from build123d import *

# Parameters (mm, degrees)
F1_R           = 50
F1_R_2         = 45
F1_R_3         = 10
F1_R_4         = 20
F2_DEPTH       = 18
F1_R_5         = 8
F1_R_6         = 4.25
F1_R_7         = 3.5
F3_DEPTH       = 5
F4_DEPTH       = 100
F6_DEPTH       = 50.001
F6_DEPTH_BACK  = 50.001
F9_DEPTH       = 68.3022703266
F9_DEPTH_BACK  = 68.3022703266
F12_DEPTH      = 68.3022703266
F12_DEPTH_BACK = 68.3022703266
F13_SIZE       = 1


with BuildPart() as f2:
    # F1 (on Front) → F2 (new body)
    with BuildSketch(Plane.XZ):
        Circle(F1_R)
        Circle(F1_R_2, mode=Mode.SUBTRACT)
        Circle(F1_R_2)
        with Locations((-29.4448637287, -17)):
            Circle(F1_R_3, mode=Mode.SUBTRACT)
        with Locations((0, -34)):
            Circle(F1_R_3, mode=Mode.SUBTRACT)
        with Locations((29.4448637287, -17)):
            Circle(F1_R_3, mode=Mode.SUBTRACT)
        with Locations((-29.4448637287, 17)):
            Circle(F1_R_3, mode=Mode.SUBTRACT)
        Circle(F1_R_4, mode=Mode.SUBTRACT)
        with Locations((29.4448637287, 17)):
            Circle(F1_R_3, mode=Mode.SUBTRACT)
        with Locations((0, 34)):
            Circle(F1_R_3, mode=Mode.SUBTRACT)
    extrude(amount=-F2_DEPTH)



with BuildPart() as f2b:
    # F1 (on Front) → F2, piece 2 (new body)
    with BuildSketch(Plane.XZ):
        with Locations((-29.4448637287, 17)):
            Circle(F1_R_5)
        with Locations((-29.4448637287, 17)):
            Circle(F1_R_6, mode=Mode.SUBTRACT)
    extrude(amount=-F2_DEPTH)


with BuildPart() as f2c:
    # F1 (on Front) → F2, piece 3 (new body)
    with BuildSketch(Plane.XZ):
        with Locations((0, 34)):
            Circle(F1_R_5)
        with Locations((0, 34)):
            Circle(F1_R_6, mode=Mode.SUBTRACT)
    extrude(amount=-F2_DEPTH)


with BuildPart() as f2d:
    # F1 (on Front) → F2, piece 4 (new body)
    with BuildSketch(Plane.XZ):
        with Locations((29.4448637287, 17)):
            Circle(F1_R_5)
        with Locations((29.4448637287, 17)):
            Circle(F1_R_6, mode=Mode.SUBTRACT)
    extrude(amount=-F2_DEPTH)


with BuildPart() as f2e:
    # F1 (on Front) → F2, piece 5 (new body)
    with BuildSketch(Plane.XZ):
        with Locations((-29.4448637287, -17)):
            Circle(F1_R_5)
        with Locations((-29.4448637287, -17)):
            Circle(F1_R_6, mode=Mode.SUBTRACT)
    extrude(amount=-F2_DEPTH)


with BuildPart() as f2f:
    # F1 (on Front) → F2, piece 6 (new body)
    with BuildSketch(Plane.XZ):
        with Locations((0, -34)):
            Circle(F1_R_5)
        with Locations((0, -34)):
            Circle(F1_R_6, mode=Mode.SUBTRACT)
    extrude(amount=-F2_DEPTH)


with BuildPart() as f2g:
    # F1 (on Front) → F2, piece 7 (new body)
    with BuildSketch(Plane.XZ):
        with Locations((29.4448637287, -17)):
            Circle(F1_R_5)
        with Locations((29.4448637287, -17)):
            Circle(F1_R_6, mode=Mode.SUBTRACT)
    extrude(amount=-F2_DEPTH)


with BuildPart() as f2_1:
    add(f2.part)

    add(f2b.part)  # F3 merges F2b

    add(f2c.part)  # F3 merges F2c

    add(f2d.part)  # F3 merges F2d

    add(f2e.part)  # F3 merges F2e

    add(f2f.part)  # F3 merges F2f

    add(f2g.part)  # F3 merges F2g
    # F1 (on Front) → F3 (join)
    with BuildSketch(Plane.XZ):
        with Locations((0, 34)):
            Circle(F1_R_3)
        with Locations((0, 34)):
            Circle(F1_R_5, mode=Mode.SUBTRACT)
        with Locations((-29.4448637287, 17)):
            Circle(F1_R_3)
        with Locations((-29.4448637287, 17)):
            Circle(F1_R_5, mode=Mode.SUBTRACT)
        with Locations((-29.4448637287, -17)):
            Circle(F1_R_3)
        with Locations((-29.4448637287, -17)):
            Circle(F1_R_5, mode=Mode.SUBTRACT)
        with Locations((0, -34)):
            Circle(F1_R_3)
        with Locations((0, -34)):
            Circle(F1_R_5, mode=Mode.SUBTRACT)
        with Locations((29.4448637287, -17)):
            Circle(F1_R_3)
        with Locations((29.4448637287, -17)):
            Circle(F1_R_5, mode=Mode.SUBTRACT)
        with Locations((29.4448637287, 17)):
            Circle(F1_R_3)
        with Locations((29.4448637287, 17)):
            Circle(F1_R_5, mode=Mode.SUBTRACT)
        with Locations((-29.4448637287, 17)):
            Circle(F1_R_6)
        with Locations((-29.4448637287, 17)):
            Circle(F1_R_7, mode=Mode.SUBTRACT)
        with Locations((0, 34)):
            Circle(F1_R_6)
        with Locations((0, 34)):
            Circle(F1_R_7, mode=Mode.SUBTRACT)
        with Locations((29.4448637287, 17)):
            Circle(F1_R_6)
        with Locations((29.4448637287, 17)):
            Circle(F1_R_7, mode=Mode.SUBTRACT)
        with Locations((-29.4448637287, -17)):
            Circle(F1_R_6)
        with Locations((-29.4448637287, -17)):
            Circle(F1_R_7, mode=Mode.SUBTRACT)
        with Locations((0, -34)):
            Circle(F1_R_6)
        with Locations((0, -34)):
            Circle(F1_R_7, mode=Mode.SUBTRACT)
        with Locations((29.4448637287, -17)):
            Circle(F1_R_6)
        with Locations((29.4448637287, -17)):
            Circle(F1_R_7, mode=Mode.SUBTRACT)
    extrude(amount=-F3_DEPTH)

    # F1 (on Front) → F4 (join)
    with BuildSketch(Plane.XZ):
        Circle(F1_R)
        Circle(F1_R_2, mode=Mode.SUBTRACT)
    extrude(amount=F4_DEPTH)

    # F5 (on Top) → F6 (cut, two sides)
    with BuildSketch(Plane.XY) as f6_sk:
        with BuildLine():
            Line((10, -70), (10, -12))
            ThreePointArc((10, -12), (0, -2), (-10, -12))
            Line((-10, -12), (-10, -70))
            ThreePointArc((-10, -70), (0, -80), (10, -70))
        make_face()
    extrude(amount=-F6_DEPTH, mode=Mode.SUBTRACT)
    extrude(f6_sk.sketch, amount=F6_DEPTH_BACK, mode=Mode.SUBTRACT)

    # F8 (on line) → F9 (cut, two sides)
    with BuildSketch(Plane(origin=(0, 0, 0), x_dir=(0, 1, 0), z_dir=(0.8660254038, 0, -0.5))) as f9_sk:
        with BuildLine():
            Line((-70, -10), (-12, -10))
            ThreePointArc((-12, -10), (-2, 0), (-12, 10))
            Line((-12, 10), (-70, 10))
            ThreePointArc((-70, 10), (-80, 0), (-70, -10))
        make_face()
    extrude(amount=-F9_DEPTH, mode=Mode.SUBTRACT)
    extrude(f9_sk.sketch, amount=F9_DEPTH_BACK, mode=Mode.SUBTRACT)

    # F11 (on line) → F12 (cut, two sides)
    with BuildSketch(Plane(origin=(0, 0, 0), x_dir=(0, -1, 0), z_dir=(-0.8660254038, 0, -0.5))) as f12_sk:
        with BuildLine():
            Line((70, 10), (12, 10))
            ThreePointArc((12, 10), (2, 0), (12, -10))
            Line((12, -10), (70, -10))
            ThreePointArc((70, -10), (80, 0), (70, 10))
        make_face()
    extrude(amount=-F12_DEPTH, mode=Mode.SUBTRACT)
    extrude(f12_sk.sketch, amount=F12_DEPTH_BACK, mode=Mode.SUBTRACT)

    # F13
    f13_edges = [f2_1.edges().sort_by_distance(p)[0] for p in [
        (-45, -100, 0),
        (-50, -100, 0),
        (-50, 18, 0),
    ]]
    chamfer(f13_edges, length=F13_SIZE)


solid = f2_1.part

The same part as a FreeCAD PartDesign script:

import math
import FreeCAD as App
import Part
import Sketcher
from FreeCAD import Vector


def edges_at(feature, points):
    """Names of the edges that pass closest to the given points."""
    edges = feature.Shape.Edges
    near = lambda p: min(range(len(edges)), key=lambda i: edges[i].distToShape(Part.Vertex(*p))[0])
    return sorted({f"Edge{near(p) + 1}" for p in points})

doc = App.newDocument("Part")
body = doc.addObject("PartDesign::Body", "Body")

sketch1 = body.newObject("Sketcher::SketchObject", "Sketch")
sketch1.AttachmentSupport = (doc.getObject("XZ_Plane"), [""])
sketch1.MapMode = "FlatFace"
sketch1.addGeometry(Part.Circle(Vector(0, 0, 0), Vector(0, 0, 1), 50), False)
sketch1.addGeometry(Part.Circle(Vector(-29, -17, 0), Vector(0, 0, 1), 10), False)
sketch1.addGeometry(Part.Circle(Vector(0, -34, 0), Vector(0, 0, 1), 10), False)
sketch1.addGeometry(Part.Circle(Vector(29, -17, 0), Vector(0, 0, 1), 10), False)
sketch1.addGeometry(Part.Circle(Vector(-29, 17, 0), Vector(0, 0, 1), 10), False)
sketch1.addGeometry(Part.Circle(Vector(0, 0, 0), Vector(0, 0, 1), 20), False)
sketch1.addGeometry(Part.Circle(Vector(29, 17, 0), Vector(0, 0, 1), 10), False)
sketch1.addGeometry(Part.Circle(Vector(0, 34, 0), Vector(0, 0, 1), 10), False)
sketch1.addConstraint(Sketcher.Constraint("Coincident", 0, 3, -1, 1))
sketch1.addConstraint(Sketcher.Constraint("Coincident", 5, 3, -1, 1))
sketch1.addConstraint(Sketcher.Constraint("Equal", 1, 2))
sketch1.addConstraint(Sketcher.Constraint("Equal", 2, 3))
sketch1.addConstraint(Sketcher.Constraint("Equal", 3, 4))
sketch1.addConstraint(Sketcher.Constraint("Equal", 4, 6))
sketch1.addConstraint(Sketcher.Constraint("Equal", 6, 7))
sketch1.addConstraint(Sketcher.Constraint("Symmetric", 3, 3, 4, 3, -1, 1))
sketch1.addConstraint(Sketcher.Constraint("Symmetric", 1, 3, 6, 3, -1, 1))
sketch1.addConstraint(Sketcher.Constraint("Symmetric", 2, 3, 7, 3, -1, 1))
sketch1.addConstraint(Sketcher.Constraint("Symmetric", 1, 3, 3, 3, -2))
sketch1.addConstraint(Sketcher.Constraint("PointOnObject", 2, 3, -2))
sketch1.addConstraint(Sketcher.Constraint("Diameter", 0, 100.0))
sketch1.addConstraint(Sketcher.Constraint("Diameter", 1, 20.0))
sketch1.addConstraint(Sketcher.Constraint("Diameter", 5, 40.0))
sketch1.addConstraint(Sketcher.Constraint("DistanceY", 1, 3, -1, 1, 17.0))
sketch1.addConstraint(Sketcher.Constraint("DistanceY", 2, 3, -1, 1, 34.0))
sketch1.addConstraint(Sketcher.Constraint("DistanceX", 1, 3, -1, 1, 29.444864))
pad1 = body.newObject("PartDesign::Pad", "Pad")
pad1.Profile = sketch1
pad1.Length = 18
pad1.Reversed = True
body2 = doc.addObject("PartDesign::Body", "Body001")

sketch2 = body2.newObject("Sketcher::SketchObject", "Sketch001")
sketch2.AttachmentSupport = (doc.getObject("XZ_Plane001"), [""])
sketch2.MapMode = "FlatFace"
sketch2.addGeometry(Part.Circle(Vector(-29.4, 17, 0), Vector(0, 0, 1), 8), False)
sketch2.addGeometry(Part.Circle(Vector(-29.4, 17, 0), Vector(0, 0, 1), 4.2), False)
sketch2.addConstraint(Sketcher.Constraint("Coincident", 1, 3, 0, 3))
sketch2.addConstraint(Sketcher.Constraint("Diameter", 0, 16.0))
sketch2.addConstraint(Sketcher.Constraint("Diameter", 1, 8.5))
sketch2.addConstraint(Sketcher.Constraint("DistanceY", -1, 1, 0, 3, 17.0))
sketch2.addConstraint(Sketcher.Constraint("DistanceX", 0, 3, -1, 1, 29.444864))
pad2 = body2.newObject("PartDesign::Pad", "Pad001")
pad2.Profile = sketch2
pad2.Length = 18
pad2.Reversed = True
body3 = doc.addObject("PartDesign::Body", "Body002")

sketch3 = body3.newObject("Sketcher::SketchObject", "Sketch002")
sketch3.AttachmentSupport = (doc.getObject("XZ_Plane002"), [""])
sketch3.MapMode = "FlatFace"
sketch3.addGeometry(Part.Circle(Vector(0, 34, 0), Vector(0, 0, 1), 8), False)
sketch3.addGeometry(Part.Circle(Vector(0, 34, 0), Vector(0, 0, 1), 4.2), False)
sketch3.addConstraint(Sketcher.Constraint("Coincident", 1, 3, 0, 3))
sketch3.addConstraint(Sketcher.Constraint("PointOnObject", 0, 3, -2))
sketch3.addConstraint(Sketcher.Constraint("Diameter", 0, 16.0))
sketch3.addConstraint(Sketcher.Constraint("Diameter", 1, 8.5))
sketch3.addConstraint(Sketcher.Constraint("DistanceY", -1, 1, 0, 3, 34.0))
pad3 = body3.newObject("PartDesign::Pad", "Pad002")
pad3.Profile = sketch3
pad3.Length = 18
pad3.Reversed = True
body4 = doc.addObject("PartDesign::Body", "Body003")

sketch4 = body4.newObject("Sketcher::SketchObject", "Sketch003")
sketch4.AttachmentSupport = (doc.getObject("XZ_Plane003"), [""])
sketch4.MapMode = "FlatFace"
sketch4.addGeometry(Part.Circle(Vector(29.4, 17, 0), Vector(0, 0, 1), 8), False)
sketch4.addGeometry(Part.Circle(Vector(29.4, 17, 0), Vector(0, 0, 1), 4.2), False)
sketch4.addConstraint(Sketcher.Constraint("Coincident", 1, 3, 0, 3))
sketch4.addConstraint(Sketcher.Constraint("Diameter", 0, 16.0))
sketch4.addConstraint(Sketcher.Constraint("Diameter", 1, 8.5))
sketch4.addConstraint(Sketcher.Constraint("DistanceY", -1, 1, 0, 3, 17.0))
sketch4.addConstraint(Sketcher.Constraint("DistanceX", -1, 1, 0, 3, 29.444864))
pad4 = body4.newObject("PartDesign::Pad", "Pad003")
pad4.Profile = sketch4
pad4.Length = 18
pad4.Reversed = True
body5 = doc.addObject("PartDesign::Body", "Body004")

sketch5 = body5.newObject("Sketcher::SketchObject", "Sketch004")
sketch5.AttachmentSupport = (doc.getObject("XZ_Plane004"), [""])
sketch5.MapMode = "FlatFace"
sketch5.addGeometry(Part.Circle(Vector(-29.4, -17, 0), Vector(0, 0, 1), 8), False)
sketch5.addGeometry(Part.Circle(Vector(-29.4, -17, 0), Vector(0, 0, 1), 4.2), False)
sketch5.addConstraint(Sketcher.Constraint("Coincident", 1, 3, 0, 3))
sketch5.addConstraint(Sketcher.Constraint("Diameter", 0, 16.0))
sketch5.addConstraint(Sketcher.Constraint("Diameter", 1, 8.5))
sketch5.addConstraint(Sketcher.Constraint("DistanceY", 0, 3, -1, 1, 17.0))
sketch5.addConstraint(Sketcher.Constraint("DistanceX", 0, 3, -1, 1, 29.444864))
pad5 = body5.newObject("PartDesign::Pad", "Pad004")
pad5.Profile = sketch5
pad5.Length = 18
pad5.Reversed = True
body6 = doc.addObject("PartDesign::Body", "Body005")

sketch6 = body6.newObject("Sketcher::SketchObject", "Sketch005")
sketch6.AttachmentSupport = (doc.getObject("XZ_Plane005"), [""])
sketch6.MapMode = "FlatFace"
sketch6.addGeometry(Part.Circle(Vector(0, -34, 0), Vector(0, 0, 1), 8), False)
sketch6.addGeometry(Part.Circle(Vector(0, -34, 0), Vector(0, 0, 1), 4.2), False)
sketch6.addConstraint(Sketcher.Constraint("Coincident", 1, 3, 0, 3))
sketch6.addConstraint(Sketcher.Constraint("PointOnObject", 0, 3, -2))
sketch6.addConstraint(Sketcher.Constraint("Diameter", 0, 16.0))
sketch6.addConstraint(Sketcher.Constraint("Diameter", 1, 8.5))
sketch6.addConstraint(Sketcher.Constraint("DistanceY", 0, 3, -1, 1, 34.0))
pad6 = body6.newObject("PartDesign::Pad", "Pad005")
pad6.Profile = sketch6
pad6.Length = 18
pad6.Reversed = True
body7 = doc.addObject("PartDesign::Body", "Body006")

sketch7 = body7.newObject("Sketcher::SketchObject", "Sketch006")
sketch7.AttachmentSupport = (doc.getObject("XZ_Plane006"), [""])
sketch7.MapMode = "FlatFace"
sketch7.addGeometry(Part.Circle(Vector(29.4, -17, 0), Vector(0, 0, 1), 8), False)
sketch7.addGeometry(Part.Circle(Vector(29.4, -17, 0), Vector(0, 0, 1), 4.2), False)
sketch7.addConstraint(Sketcher.Constraint("Coincident", 1, 3, 0, 3))
sketch7.addConstraint(Sketcher.Constraint("Diameter", 0, 16.0))
sketch7.addConstraint(Sketcher.Constraint("Diameter", 1, 8.5))
sketch7.addConstraint(Sketcher.Constraint("DistanceY", 0, 3, -1, 1, 17.0))
sketch7.addConstraint(Sketcher.Constraint("DistanceX", -1, 1, 0, 3, 29.444864))
pad7 = body7.newObject("PartDesign::Pad", "Pad006")
pad7.Profile = sketch7
pad7.Length = 18
pad7.Reversed = True
body.AllowCompound = True
doc.recompute()

boolean = body.newObject("PartDesign::Boolean", "Boolean")
boolean.Type = "Fuse"
boolean.addObjects([body2])
doc.recompute()

boolean2 = body.newObject("PartDesign::Boolean", "Boolean001")
boolean2.Type = "Fuse"
boolean2.addObjects([body3])
doc.recompute()

boolean3 = body.newObject("PartDesign::Boolean", "Boolean002")
boolean3.Type = "Fuse"
boolean3.addObjects([body4])
doc.recompute()

boolean4 = body.newObject("PartDesign::Boolean", "Boolean003")
boolean4.Type = "Fuse"
boolean4.addObjects([body5])
doc.recompute()

boolean5 = body.newObject("PartDesign::Boolean", "Boolean004")
boolean5.Type = "Fuse"
boolean5.addObjects([body6])
doc.recompute()

boolean6 = body.newObject("PartDesign::Boolean", "Boolean005")
boolean6.Type = "Fuse"
boolean6.addObjects([body7])

sketch8 = body.newObject("Sketcher::SketchObject", "Sketch007")
sketch8.AttachmentSupport = (doc.getObject("XZ_Plane"), [""])
sketch8.MapMode = "FlatFace"
sketch8.addGeometry(Part.Circle(Vector(0, 34, 0), Vector(0, 0, 1), 10), False)
sketch8.addGeometry(Part.Circle(Vector(0, 34, 0), Vector(0, 0, 1), 8), False)
sketch8.addGeometry(Part.Circle(Vector(-29.4, 17, 0), Vector(0, 0, 1), 10), False)
sketch8.addGeometry(Part.Circle(Vector(-29.4, 17, 0), Vector(0, 0, 1), 8), False)
sketch8.addGeometry(Part.Circle(Vector(-29.4, -17, 0), Vector(0, 0, 1), 10), False)
sketch8.addGeometry(Part.Circle(Vector(-29.4, -17, 0), Vector(0, 0, 1), 8), False)
sketch8.addGeometry(Part.Circle(Vector(0, -34, 0), Vector(0, 0, 1), 10), False)
sketch8.addGeometry(Part.Circle(Vector(0, -34, 0), Vector(0, 0, 1), 8), False)
sketch8.addGeometry(Part.Circle(Vector(29.4, -17, 0), Vector(0, 0, 1), 10), False)
sketch8.addGeometry(Part.Circle(Vector(29.4, -17, 0), Vector(0, 0, 1), 8), False)
sketch8.addGeometry(Part.Circle(Vector(29.4, 17, 0), Vector(0, 0, 1), 10), False)
sketch8.addGeometry(Part.Circle(Vector(29.4, 17, 0), Vector(0, 0, 1), 8), False)
sketch8.addGeometry(Part.Circle(Vector(-29.4, 17, 0), Vector(0, 0, 1), 4.2), False)
sketch8.addGeometry(Part.Circle(Vector(-29.4, 17, 0), Vector(0, 0, 1), 3.5), False)
sketch8.addGeometry(Part.Circle(Vector(0, 34, 0), Vector(0, 0, 1), 4.2), False)
sketch8.addGeometry(Part.Circle(Vector(0, 34, 0), Vector(0, 0, 1), 3.5), False)
sketch8.addGeometry(Part.Circle(Vector(29.4, 17, 0), Vector(0, 0, 1), 4.2), False)
sketch8.addGeometry(Part.Circle(Vector(29.4, 17, 0), Vector(0, 0, 1), 3.5), False)
sketch8.addGeometry(Part.Circle(Vector(-29.4, -17, 0), Vector(0, 0, 1), 4.2), False)
sketch8.addGeometry(Part.Circle(Vector(-29.4, -17, 0), Vector(0, 0, 1), 3.5), False)
sketch8.addGeometry(Part.Circle(Vector(0, -34, 0), Vector(0, 0, 1), 4.2), False)
sketch8.addGeometry(Part.Circle(Vector(0, -34, 0), Vector(0, 0, 1), 3.5), False)
sketch8.addGeometry(Part.Circle(Vector(29.4, -17, 0), Vector(0, 0, 1), 4.2), False)
sketch8.addGeometry(Part.Circle(Vector(29.4, -17, 0), Vector(0, 0, 1), 3.5), False)
sketch8.addConstraint(Sketcher.Constraint("Coincident", 1, 3, 0, 3))
sketch8.addConstraint(Sketcher.Constraint("Coincident", 3, 3, 2, 3))
sketch8.addConstraint(Sketcher.Constraint("Coincident", 5, 3, 4, 3))
sketch8.addConstraint(Sketcher.Constraint("Coincident", 7, 3, 6, 3))
sketch8.addConstraint(Sketcher.Constraint("Coincident", 9, 3, 8, 3))
sketch8.addConstraint(Sketcher.Constraint("Coincident", 11, 3, 10, 3))
sketch8.addConstraint(Sketcher.Constraint("Coincident", 12, 3, 2, 3))
sketch8.addConstraint(Sketcher.Constraint("Coincident", 13, 3, 2, 3))
sketch8.addConstraint(Sketcher.Constraint("Coincident", 14, 3, 0, 3))
sketch8.addConstraint(Sketcher.Constraint("Coincident", 15, 3, 0, 3))
sketch8.addConstraint(Sketcher.Constraint("Coincident", 16, 3, 10, 3))
sketch8.addConstraint(Sketcher.Constraint("Coincident", 17, 3, 10, 3))
sketch8.addConstraint(Sketcher.Constraint("Coincident", 18, 3, 4, 3))
sketch8.addConstraint(Sketcher.Constraint("Coincident", 19, 3, 4, 3))
sketch8.addConstraint(Sketcher.Constraint("Coincident", 20, 3, 6, 3))
sketch8.addConstraint(Sketcher.Constraint("Coincident", 21, 3, 6, 3))
sketch8.addConstraint(Sketcher.Constraint("Coincident", 22, 3, 8, 3))
sketch8.addConstraint(Sketcher.Constraint("Coincident", 23, 3, 8, 3))
sketch8.addConstraint(Sketcher.Constraint("Equal", 0, 2))
sketch8.addConstraint(Sketcher.Constraint("Equal", 1, 3))
sketch8.addConstraint(Sketcher.Constraint("Equal", 2, 4))
sketch8.addConstraint(Sketcher.Constraint("Equal", 3, 5))
sketch8.addConstraint(Sketcher.Constraint("Equal", 4, 6))
sketch8.addConstraint(Sketcher.Constraint("Equal", 5, 7))
sketch8.addConstraint(Sketcher.Constraint("Equal", 6, 8))
sketch8.addConstraint(Sketcher.Constraint("Equal", 7, 9))
sketch8.addConstraint(Sketcher.Constraint("Equal", 8, 10))
sketch8.addConstraint(Sketcher.Constraint("Equal", 9, 11))
sketch8.addConstraint(Sketcher.Constraint("Equal", 12, 14))
sketch8.addConstraint(Sketcher.Constraint("Equal", 13, 15))
sketch8.addConstraint(Sketcher.Constraint("Equal", 14, 16))
sketch8.addConstraint(Sketcher.Constraint("Equal", 15, 17))
sketch8.addConstraint(Sketcher.Constraint("Equal", 16, 18))
sketch8.addConstraint(Sketcher.Constraint("Equal", 17, 19))
sketch8.addConstraint(Sketcher.Constraint("Equal", 18, 20))
sketch8.addConstraint(Sketcher.Constraint("Equal", 19, 21))
sketch8.addConstraint(Sketcher.Constraint("Equal", 20, 22))
sketch8.addConstraint(Sketcher.Constraint("Equal", 21, 23))
sketch8.addConstraint(Sketcher.Constraint("Symmetric", 0, 3, 6, 3, -1, 1))
sketch8.addConstraint(Sketcher.Constraint("Symmetric", 2, 3, 8, 3, -1, 1))
sketch8.addConstraint(Sketcher.Constraint("Symmetric", 4, 3, 10, 3, -1, 1))
sketch8.addConstraint(Sketcher.Constraint("Symmetric", 4, 3, 8, 3, -2))
sketch8.addConstraint(Sketcher.Constraint("PointOnObject", 0, 3, -2))
sketch8.addConstraint(Sketcher.Constraint("Diameter", 0, 20.0))
sketch8.addConstraint(Sketcher.Constraint("Diameter", 1, 16.0))
sketch8.addConstraint(Sketcher.Constraint("Diameter", 13, 7.0))
sketch8.addConstraint(Sketcher.Constraint("Diameter", 12, 8.5))
sketch8.addConstraint(Sketcher.Constraint("DistanceY", -1, 1, 0, 3, 34.0))
sketch8.addConstraint(Sketcher.Constraint("DistanceY", -1, 1, 2, 3, 17.0))
sketch8.addConstraint(Sketcher.Constraint("DistanceX", 2, 3, -1, 1, 29.444864))
pad8 = body.newObject("PartDesign::Pad", "Pad007")
pad8.Profile = sketch8
pad8.Length = 5
pad8.Reversed = True

sketch9 = body.newObject("Sketcher::SketchObject", "Sketch008")
sketch9.AttachmentSupport = (doc.getObject("XZ_Plane"), [""])
sketch9.MapMode = "FlatFace"
sketch9.addGeometry(Part.Circle(Vector(0, 0, 0), Vector(0, 0, 1), 50), False)
sketch9.addGeometry(Part.Circle(Vector(0, 0, 0), Vector(0, 0, 1), 45), False)
sketch9.addConstraint(Sketcher.Constraint("Coincident", 0, 3, -1, 1))
sketch9.addConstraint(Sketcher.Constraint("Coincident", 1, 3, -1, 1))
sketch9.addConstraint(Sketcher.Constraint("Diameter", 0, 100.0))
sketch9.addConstraint(Sketcher.Constraint("Diameter", 1, 90.0))
pad9 = body.newObject("PartDesign::Pad", "Pad008")
pad9.Profile = sketch9
pad9.Length = 100

sketch10 = body.newObject("Sketcher::SketchObject", "Sketch009")
sketch10.AttachmentSupport = (doc.getObject("XY_Plane"), [""])
sketch10.MapMode = "FlatFace"
sketch10.addGeometry(Part.LineSegment(Vector(10, -70, 0), Vector(10, -12, 0)), False)
sketch10.addGeometry(Part.ArcOfCircle(Part.Circle(Vector(0, -12, 0), Vector(0, 0, 1), 10), math.radians(0), math.radians(180)), False)
sketch10.addGeometry(Part.LineSegment(Vector(-10, -12, 0), Vector(-10, -70, 0)), False)
sketch10.addGeometry(Part.ArcOfCircle(Part.Circle(Vector(0, -70, 0), Vector(0, 0, 1), 10), math.radians(180), math.radians(360)), False)
sketch10.addConstraint(Sketcher.Constraint("Tangent", 0, 2, 1, 1))
sketch10.addConstraint(Sketcher.Constraint("Tangent", 1, 2, 2, 1))
sketch10.addConstraint(Sketcher.Constraint("Tangent", 2, 2, 3, 1))
sketch10.addConstraint(Sketcher.Constraint("Tangent", 3, 2, 0, 1))
sketch10.addConstraint(Sketcher.Constraint("Vertical", 0))
sketch10.addConstraint(Sketcher.Constraint("Vertical", 2))
sketch10.addConstraint(Sketcher.Constraint("PointOnObject", 1, 3, -2))
sketch10.addConstraint(Sketcher.Constraint("Radius", 1, 10.0))
sketch10.addConstraint(Sketcher.Constraint("DistanceY", 0, 1, 0, 2, 58.0))
sketch10.addConstraint(Sketcher.Constraint("DistanceY", 1, 3, -1, 1, 12.0))
pocket1 = body.newObject("PartDesign::Pocket", "Pocket")
pocket1.Profile = sketch10
pocket1.Type = "ThroughAll"
pocket1.Midplane = True

sketch11 = body.newObject("Sketcher::SketchObject", "Sketch010")
sketch11.Placement = App.Placement(Vector(0, 0, 0), App.Rotation(Vector(0, 1, 0), Vector(0.5, 0, 0.866025404), Vector(0.866025404, 0, -0.5), "ZXY"))
sketch11.addGeometry(Part.LineSegment(Vector(-70, -10, 0), Vector(-12, -10, 0)), False)
sketch11.addGeometry(Part.ArcOfCircle(Part.Circle(Vector(-12, 0, 0), Vector(0, 0, 1), 10), math.radians(-90), math.radians(90)), False)
sketch11.addGeometry(Part.LineSegment(Vector(-12, 10, 0), Vector(-70, 10, 0)), False)
sketch11.addGeometry(Part.ArcOfCircle(Part.Circle(Vector(-70, 0, 0), Vector(0, 0, 1), 10), math.radians(90), math.radians(270)), False)
sketch11.addConstraint(Sketcher.Constraint("Tangent", 0, 2, 1, 1))
sketch11.addConstraint(Sketcher.Constraint("Tangent", 1, 2, 2, 1))
sketch11.addConstraint(Sketcher.Constraint("Tangent", 2, 2, 3, 1))
sketch11.addConstraint(Sketcher.Constraint("Tangent", 3, 2, 0, 1))
sketch11.addConstraint(Sketcher.Constraint("Horizontal", 0))
sketch11.addConstraint(Sketcher.Constraint("Horizontal", 2))
sketch11.addConstraint(Sketcher.Constraint("PointOnObject", 1, 3, -1))
sketch11.addConstraint(Sketcher.Constraint("Radius", 1, 10.0))
sketch11.addConstraint(Sketcher.Constraint("DistanceX", 0, 1, 0, 2, 58.0))
sketch11.addConstraint(Sketcher.Constraint("DistanceX", 1, 3, -1, 1, 12.0))
pocket2 = body.newObject("PartDesign::Pocket", "Pocket001")
pocket2.Profile = sketch11
pocket2.Type = "ThroughAll"
pocket2.Midplane = True

sketch12 = body.newObject("Sketcher::SketchObject", "Sketch011")
sketch12.Placement = App.Placement(Vector(0, 0, 0), App.Rotation(Vector(0, -1, 0), Vector(-0.5, 0, 0.866025404), Vector(-0.866025404, 0, -0.5), "ZXY"))
sketch12.addGeometry(Part.LineSegment(Vector(70, 10, 0), Vector(12, 10, 0)), False)
sketch12.addGeometry(Part.ArcOfCircle(Part.Circle(Vector(12, 0, 0), Vector(0, 0, 1), 10), math.radians(90), math.radians(270)), False)
sketch12.addGeometry(Part.LineSegment(Vector(12, -10, 0), Vector(70, -10, 0)), False)
sketch12.addGeometry(Part.ArcOfCircle(Part.Circle(Vector(70, 0, 0), Vector(0, 0, 1), 10), math.radians(-90), math.radians(90)), False)
sketch12.addConstraint(Sketcher.Constraint("Tangent", 0, 2, 1, 1))
sketch12.addConstraint(Sketcher.Constraint("Tangent", 1, 2, 2, 1))
sketch12.addConstraint(Sketcher.Constraint("Tangent", 2, 2, 3, 1))
sketch12.addConstraint(Sketcher.Constraint("Tangent", 3, 2, 0, 1))
sketch12.addConstraint(Sketcher.Constraint("Horizontal", 0))
sketch12.addConstraint(Sketcher.Constraint("Horizontal", 2))
sketch12.addConstraint(Sketcher.Constraint("PointOnObject", 1, 3, -1))
sketch12.addConstraint(Sketcher.Constraint("Radius", 1, 10.0))
sketch12.addConstraint(Sketcher.Constraint("DistanceX", 0, 2, 0, 1, 58.0))
sketch12.addConstraint(Sketcher.Constraint("DistanceX", -1, 1, 1, 3, 12.0))
pocket3 = body.newObject("PartDesign::Pocket", "Pocket002")
pocket3.Profile = sketch12
pocket3.Type = "ThroughAll"
pocket3.Midplane = True
doc.recompute()

chamfer = body.newObject("PartDesign::Chamfer", "Chamfer")
chamfer.Base = (pocket3, edges_at(pocket3, [(-45, -100, 0), (-50, -100, 0), (-50, 18, 0)]))
chamfer.Size = 1

doc.recompute()
